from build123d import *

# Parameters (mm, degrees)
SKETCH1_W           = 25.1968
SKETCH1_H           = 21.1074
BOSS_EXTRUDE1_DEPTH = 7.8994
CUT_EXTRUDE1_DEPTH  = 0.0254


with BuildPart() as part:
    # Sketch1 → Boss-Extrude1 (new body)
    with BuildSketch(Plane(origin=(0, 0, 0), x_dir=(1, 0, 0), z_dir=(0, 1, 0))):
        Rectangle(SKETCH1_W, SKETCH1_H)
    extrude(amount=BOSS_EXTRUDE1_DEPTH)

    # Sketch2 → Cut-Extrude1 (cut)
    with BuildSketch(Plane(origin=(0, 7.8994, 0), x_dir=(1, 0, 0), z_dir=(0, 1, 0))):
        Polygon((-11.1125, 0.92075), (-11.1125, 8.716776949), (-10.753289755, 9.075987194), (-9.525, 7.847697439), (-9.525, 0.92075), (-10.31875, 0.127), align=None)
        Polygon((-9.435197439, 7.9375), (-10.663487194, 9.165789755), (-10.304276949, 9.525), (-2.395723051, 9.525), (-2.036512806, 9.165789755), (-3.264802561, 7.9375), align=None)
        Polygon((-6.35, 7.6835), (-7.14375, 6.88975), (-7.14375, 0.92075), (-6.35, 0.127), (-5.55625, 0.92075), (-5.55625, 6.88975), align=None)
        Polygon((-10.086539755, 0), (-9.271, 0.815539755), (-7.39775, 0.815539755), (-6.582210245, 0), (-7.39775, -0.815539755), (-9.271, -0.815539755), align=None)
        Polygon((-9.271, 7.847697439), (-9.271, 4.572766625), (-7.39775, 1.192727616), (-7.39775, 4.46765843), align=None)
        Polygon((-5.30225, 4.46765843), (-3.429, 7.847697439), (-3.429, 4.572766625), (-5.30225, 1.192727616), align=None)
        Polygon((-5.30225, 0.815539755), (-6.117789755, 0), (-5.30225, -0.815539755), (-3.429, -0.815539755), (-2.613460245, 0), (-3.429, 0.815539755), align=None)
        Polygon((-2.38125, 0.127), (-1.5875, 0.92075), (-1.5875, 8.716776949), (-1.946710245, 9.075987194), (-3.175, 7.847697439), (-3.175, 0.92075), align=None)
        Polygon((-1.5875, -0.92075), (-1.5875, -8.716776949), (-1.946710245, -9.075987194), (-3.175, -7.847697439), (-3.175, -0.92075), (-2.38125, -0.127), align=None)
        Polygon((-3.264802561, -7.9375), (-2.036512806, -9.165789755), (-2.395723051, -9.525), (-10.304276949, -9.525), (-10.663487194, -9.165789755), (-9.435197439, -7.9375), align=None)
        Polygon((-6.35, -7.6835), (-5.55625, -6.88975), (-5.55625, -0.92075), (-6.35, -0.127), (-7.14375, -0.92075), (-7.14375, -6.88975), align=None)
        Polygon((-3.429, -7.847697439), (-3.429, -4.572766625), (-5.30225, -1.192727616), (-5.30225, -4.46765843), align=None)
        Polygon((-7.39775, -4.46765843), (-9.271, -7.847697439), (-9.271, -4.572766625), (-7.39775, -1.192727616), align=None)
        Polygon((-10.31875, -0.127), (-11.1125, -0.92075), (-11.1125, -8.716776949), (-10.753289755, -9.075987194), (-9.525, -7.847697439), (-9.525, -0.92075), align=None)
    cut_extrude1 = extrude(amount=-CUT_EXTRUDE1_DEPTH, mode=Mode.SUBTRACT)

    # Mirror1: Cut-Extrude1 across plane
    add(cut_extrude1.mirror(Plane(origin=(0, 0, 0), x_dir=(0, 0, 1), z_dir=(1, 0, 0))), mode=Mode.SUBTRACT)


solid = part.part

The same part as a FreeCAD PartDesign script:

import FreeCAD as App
import Part
import Sketcher

V = App.Vector
Q = App.Units.Quantity

doc = App.newDocument("Part")
body = doc.addObject("PartDesign::Body", "Body")

sketch1 = body.newObject("Sketcher::SketchObject", "Sketch")
sketch1.AttachmentSupport = (doc.getObject("XZ_Plane"), [""])
sketch1.MapMode = "FlatFace"
sketch1.addGeometry([
    Part.LineSegment(V(-12.5984, -10.5537, 0), V(-12.5984, 10.5537, 0)),
    Part.LineSegment(V(-12.5984, 10.5537, 0), V(12.5984, 10.5537, 0)),
    Part.LineSegment(V(12.5984, 10.5537, 0), V(12.5984, -10.5537, 0)),
    Part.LineSegment(V(12.5984, -10.5537, 0), V(-12.5984, -10.5537, 0)),
], False)
sketch1.addConstraint([
    Sketcher.Constraint("Coincident", 0, 2, 1, 1),
    Sketcher.Constraint("Coincident", 1, 2, 2, 1),
    Sketcher.Constraint("Coincident", 2, 2, 3, 1),
    Sketcher.Constraint("Coincident", 3, 2, 0, 1),
    Sketcher.Constraint("Vertical", 0),
    Sketcher.Constraint("Horizontal", 1),
    Sketcher.Constraint("Vertical", 2),
    Sketcher.Constraint("Horizontal", 3),
    Sketcher.Constraint("Symmetric", 0, 2, 2, 2, -1, 1),
    Sketcher.Constraint("DistanceX", 1, 1, 1, 2, Q("0.992 in")),
    Sketcher.Constraint("DistanceY", 0, 1, 0, 2, Q("0.831 in")),
])
pad1 = body.newObject("PartDesign::Pad", "Pad")
pad1.Profile = sketch1
pad1.Length = Q("0.311 in")
pad1.Reversed = True

sketch2 = body.newObject("Sketcher::SketchObject", "Sketch001")
sketch2.AttachmentSupport = (doc.getObject("XZ_Plane"), [""])
sketch2.MapMode = "FlatFace"
sketch2.AttachmentOffset = App.Placement(V(0, 0, -0.311 * 25.4), App.Rotation())
sketch2.addGeometry([
    Part.LineSegment(V(-11.1125, -8.716777, 0), V(-11.1125, -0.92075, 0)),
    Part.LineSegment(V(-11.1125, -0.92075, 0), V(-10.31875, -0.127, 0)),
    Part.LineSegment(V(-10.31875, -0.127, 0), V(-9.525, -0.92075, 0)),
    Part.LineSegment(V(-9.525, -0.92075, 0), V(-9.525, -7.847697, 0)),
    Part.LineSegment(V(-9.525, -7.847697, 0), V(-10.75329, -9.075987, 0)),
    Part.LineSegment(V(-10.75329, -9.075987, 0), V(-11.1125, -8.716777, 0)),
    Part.LineSegment(V(-10.663487, -9.16579, 0), V(-9.435197, -7.9375, 0)),
    Part.LineSegment(V(-9.435197, -7.9375, 0), V(-3.264803, -7.9375, 0)),
    Part.LineSegment(V(-3.264803, -7.9375, 0), V(-2.036513, -9.16579, 0)),
    Part.LineSegment(V(-2.036513, -9.16579, 0), V(-2.395723, -9.525, 0)),
    Part.LineSegment(V(-2.395723, -9.525, 0), V(-10.304277, -9.525, 0)),
    Part.LineSegment(V(-10.304277, -9.525, 0), V(-10.663487, -9.16579, 0)),
    Part.LineSegment(V(-6.35, -7.6835, 0), V(-7.14375, -6.88975, 0)),
    Part.LineSegment(V(-7.14375, -6.88975, 0), V(-7.14375, -0.92075, 0)),
    Part.LineSegment(V(-7.14375, -0.92075, 0), V(-6.35, -0.127, 0)),
    Part.LineSegment(V(-6.35, -0.127, 0), V(-5.55625, -0.92075, 0)),
    Part.LineSegment(V(-5.55625, -0.92075, 0), V(-5.55625, -6.88975, 0)),
    Part.LineSegment(V(-5.55625, -6.88975, 0), V(-6.35, -7.6835, 0)),
    Part.LineSegment(V(-9.271, -0.81554, 0), V(-10.08654, 0, 0)),
    Part.LineSegment(V(-10.08654, 0, 0), V(-9.271, 0.81554, 0)),
    Part.LineSegment(V(-9.271, 0.81554, 0), V(-7.39775, 0.81554, 0)),
    Part.LineSegment(V(-7.39775, 0.81554, 0), V(-6.58221, 0, 0)),
    Part.LineSegment(V(-6.58221, 0, 0), V(-7.39775, -0.81554, 0)),
    Part.LineSegment(V(-7.39775, -0.81554, 0), V(-9.271, -0.81554, 0)),
    Part.LineSegment(V(-9.271, -7.847697, 0), V(-9.271, -4.572767, 0)),
    Part.LineSegment(V(-9.271, -4.572767, 0), V(-7.39775, -1.192728, 0)),
    Part.LineSegment(V(-7.39775, -1.192728, 0), V(-7.39775, -4.467658, 0)),
    Part.LineSegment(V(-7.39775, -4.467658, 0), V(-9.271, -7.847697, 0)),
    Part.LineSegment(V(-3.429, -7.847697, 0), V(-5.30225, -4.467658, 0)),
    Part.LineSegment(V(-5.30225, -4.467658, 0), V(-5.30225, -1.192728, 0)),
    Part.LineSegment(V(-5.30225, -1.192728, 0), V(-3.429, -4.572767, 0)),
    Part.LineSegment(V(-3.429, -4.572767, 0), V(-3.429, -7.847697, 0)),
    Part.LineSegment(V(-5.30225, -0.81554, 0), V(-6.11779, 0, 0)),
    Part.LineSegment(V(-6.11779, 0, 0), V(-5.30225, 0.81554, 0)),
    Part.LineSegment(V(-5.30225, 0.81554, 0), V(-3.429, 0.81554, 0)),
    Part.LineSegment(V(-3.429, 0.81554, 0), V(-2.61346, 0, 0)),
    Part.LineSegment(V(-2.61346, 0, 0), V(-3.429, -0.81554, 0)),
    Part.LineSegment(V(-3.429, -0.81554, 0), V(-5.30225, -0.81554, 0)),
    Part.LineSegment(V(-2.38125, -0.127, 0), V(-1.5875, -0.92075, 0)),
    Part.LineSegment(V(-1.5875, -0.92075, 0), V(-1.5875, -8.716777, 0)),
    Part.LineSegment(V(-1.5875, -8.716777, 0), V(-1.94671, -9.075987, 0)),
    Part.LineSegment(V(-1.94671, -9.075987, 0), V(-3.175, -7.847697, 0)),
    Part.LineSegment(V(-3.175, -7.847697, 0), V(-3.175, -0.92075, 0)),
    Part.LineSegment(V(-3.175, -0.92075, 0), V(-2.38125, -0.127, 0)),
    Part.LineSegment(V(-1.5875, 8.716777, 0), V(-1.5875, 0.92075, 0)),
    Part.LineSegment(V(-1.5875, 0.92075, 0), V(-2.38125, 0.127, 0)),
    Part.LineSegment(V(-2.38125, 0.127, 0), V(-3.175, 0.92075, 0)),
    Part.LineSegment(V(-3.175, 0.92075, 0), V(-3.175, 7.847697, 0)),
    Part.LineSegment(V(-3.175, 7.847697, 0), V(-1.94671, 9.075987, 0)),
    Part.LineSegment(V(-1.94671, 9.075987, 0), V(-1.5875, 8.716777, 0)),
    Part.LineSegment(V(-2.036513, 9.16579, 0), V(-3.264803, 7.9375, 0)),
    Part.LineSegment(V(-3.264803, 7.9375, 0), V(-9.435197, 7.9375, 0)),
    Part.LineSegment(V(-9.435197, 7.9375, 0), V(-10.663487, 9.16579, 0)),
    Part.LineSegment(V(-10.663487, 9.16579, 0), V(-10.304277, 9.525, 0)),
    Part.LineSegment(V(-10.304277, 9.525, 0), V(-2.395723, 9.525, 0)),
    Part.LineSegment(V(-2.395723, 9.525, 0), V(-2.036513, 9.16579, 0)),
    Part.LineSegment(V(-6.35, 7.6835, 0), V(-5.55625, 6.88975, 0)),
    Part.LineSegment(V(-5.55625, 6.88975, 0), V(-5.55625, 0.92075, 0)),
    Part.LineSegment(V(-5.55625, 0.92075, 0), V(-6.35, 0.127, 0)),
    Part.LineSegment(V(-6.35, 0.127, 0), V(-7.14375, 0.92075, 0)),
    Part.LineSegment(V(-7.14375, 0.92075, 0), V(-7.14375, 6.88975, 0)),
    Part.LineSegment(V(-7.14375, 6.88975, 0), V(-6.35, 7.6835, 0)),
    Part.LineSegment(V(-3.429, 7.847697, 0), V(-3.429, 4.572767, 0)),
    Part.LineSegment(V(-3.429, 4.572767, 0), V(-5.30225, 1.192728, 0)),
    Part.LineSegment(V(-5.30225, 1.192728, 0), V(-5.30225, 4.467658, 0)),
    Part.LineSegment(V(-5.30225, 4.467658, 0), V(-3.429, 7.847697, 0)),
    Part.LineSegment(V(-9.271, 7.847697, 0), V(-7.39775, 4.467658, 0)),
    Part.LineSegment(V(-7.39775, 4.467658, 0), V(-7.39775, 1.192728, 0)),
    Part.LineSegment(V(-7.39775, 1.192728, 0), V(-9.271, 4.572767, 0)),
    Part.LineSegment(V(-9.271, 4.572767, 0), V(-9.271, 7.847697, 0)),
    Part.LineSegment(V(-10.31875, 0.127, 0), V(-11.1125, 0.92075, 0)),
    Part.LineSegment(V(-11.1125, 0.92075, 0), V(-11.1125, 8.716777, 0)),
    Part.LineSegment(V(-11.1125, 8.716777, 0), V(-10.75329, 9.075987, 0)),
    Part.LineSegment(V(-10.75329, 9.075987, 0), V(-9.525, 7.847697, 0)),
    Part.LineSegment(V(-9.525, 7.847697, 0), V(-9.525, 0.92075, 0)),
    Part.LineSegment(V(-9.525, 0.92075, 0), V(-10.31875, 0.127, 0)),
], False)
sketch2.addConstraint([
    Sketcher.Constraint("Coincident", 0, 2, 1, 1),
    Sketcher.Constraint("Coincident", 1, 2, 2, 1),
    Sketcher.Constraint("Coincident", 2, 2, 3, 1),
    Sketcher.Constraint("Coincident", 3, 2, 4, 1),
    Sketcher.Constraint("Coincident", 4, 2, 5, 1),
    Sketcher.Constraint("Coincident", 5, 2, 0, 1),
    Sketcher.Constraint("Coincident", 6, 2, 7, 1),
    Sketcher.Constraint("Coincident", 7, 2, 8, 1),
    Sketcher.Constraint("Coincident", 8, 2, 9, 1),
    Sketcher.Constraint("Coincident", 9, 2, 10, 1),
    Sketcher.Constraint("Coincident", 10, 2, 11, 1),
    Sketcher.Constraint("Coincident", 11, 2, 6, 1),
    Sketcher.Constraint("Coincident", 12, 2, 13, 1),
    Sketcher.Constraint("Coincident", 13, 2, 14, 1),
    Sketcher.Constraint("Coincident", 14, 2, 15, 1),
    Sketcher.Constraint("Coincident", 15, 2, 16, 1),
    Sketcher.Constraint("Coincident", 16, 2, 17, 1),
    Sketcher.Constraint("Coincident", 17, 2, 12, 1),
    Sketcher.Constraint("Coincident", 18, 2, 19, 1),
    Sketcher.Constraint("Coincident", 19, 2, 20, 1),
    Sketcher.Constraint("Coincident", 20, 2, 21, 1),
    Sketcher.Constraint("Coincident", 21, 2, 22, 1),
    Sketcher.Constraint("Coincident", 22, 2, 23, 1),
    Sketcher.Constraint("Coincident", 23, 2, 18, 1),
    Sketcher.Constraint("Coincident", 24, 2, 25, 1),
    Sketcher.Constraint("Coincident", 25, 2, 26, 1),
    Sketcher.Constraint("Coincident", 26, 2, 27, 1),
    Sketcher.Constraint("Coincident", 27, 2, 24, 1),
    Sketcher.Constraint("Coincident", 28, 2, 29, 1),
    Sketcher.Constraint("Coincident", 29, 2, 30, 1),
    Sketcher.Constraint("Coincident", 30, 2, 31, 1),
    Sketcher.Constraint("Coincident", 31, 2, 28, 1),
    Sketcher.Constraint("Coincident", 32, 2, 33, 1),
    Sketcher.Constraint("Coincident", 33, 2, 34, 1),
    Sketcher.Constraint("Coincident", 34, 2, 35, 1),
    Sketcher.Constraint("Coincident", 35, 2, 36, 1),
    Sketcher.Constraint("Coincident", 36, 2, 37, 1),
    Sketcher.Constraint("Coincident", 37, 2, 32, 1),
    Sketcher.Constraint("Coincident", 38, 2, 39, 1),
    Sketcher.Constraint("Coincident", 39, 2, 40, 1),
    Sketcher.Constraint("Coincident", 40, 2, 41, 1),
    Sketcher.Constraint("Coincident", 41, 2, 42, 1),
    Sketcher.Constraint("Coincident", 42, 2, 43, 1),
    Sketcher.Constraint("Coincident", 43, 2, 38, 1),
    Sketcher.Constraint("Coincident", 44, 2, 45, 1),
    Sketcher.Constraint("Coincident", 45, 2, 46, 1),
    Sketcher.Constraint("Coincident", 46, 2, 47, 1),
    Sketcher.Constraint("Coincident", 47, 2, 48, 1),
    Sketcher.Constraint("Coincident", 48, 2, 49, 1),
    Sketcher.Constraint("Coincident", 49, 2, 44, 1),
    Sketcher.Constraint("Coincident", 50, 2, 51, 1),
    Sketcher.Constraint("Coincident", 51, 2, 52, 1),
    Sketcher.Constraint("Coincident", 52, 2, 53, 1),
    Sketcher.Constraint("Coincident", 53, 2, 54, 1),
    Sketcher.Constraint("Coincident", 54, 2, 55, 1),
    Sketcher.Constraint("Coincident", 55, 2, 50, 1),
    Sketcher.Constraint("Coincident", 56, 2, 57, 1),
    Sketcher.Constraint("Coincident", 57, 2, 58, 1),
    Sketcher.Constraint("Coincident", 58, 2, 59, 1),
    Sketcher.Constraint("Coincident", 59, 2, 60, 1),
    Sketcher.Constraint("Coincident", 60, 2, 61, 1),
    Sketcher.Constraint("Coincident", 61, 2, 56, 1),
    Sketcher.Constraint("Coincident", 62, 2, 63, 1),
    Sketcher.Constraint("Coincident", 63, 2, 64, 1),
    Sketcher.Constraint("Coincident", 64, 2, 65, 1),
    Sketcher.Constraint("Coincident", 65, 2, 62, 1),
    Sketcher.Constraint("Coincident", 66, 2, 67, 1),
    Sketcher.Constraint("Coincident", 67, 2, 68, 1),
    Sketcher.Constraint("Coincident", 68, 2, 69, 1),
    Sketcher.Constraint("Coincident", 69, 2, 66, 1),
    Sketcher.Constraint("Coincident", 70, 2, 71, 1),
    Sketcher.Constraint("Coincident", 71, 2, 72, 1),
    Sketcher.Constraint("Coincident", 72, 2, 73, 1),
    Sketcher.Constraint("Coincident", 73, 2, 74, 1),
    Sketcher.Constraint("Coincident", 74, 2, 75, 1),
    Sketcher.Constraint("Coincident", 75, 2, 70, 1),
    Sketcher.Constraint("Vertical", 0),
    Sketcher.Constraint("Vertical", 3),
    Sketcher.Constraint("Horizontal", 7),
    Sketcher.Constraint("Horizontal", 10),
    Sketcher.Constraint("Vertical", 13),
    Sketcher.Constraint("Vertical", 16),
    Sketcher.Constraint("Horizontal", 20),
    Sketcher.Constraint("Horizontal", 23),
    Sketcher.Constraint("Vertical", 24),
    Sketcher.Constraint("Vertical", 26),
    Sketcher.Constraint("Vertical", 29),
    Sketcher.Constraint("Vertical", 31),
    Sketcher.Constraint("Horizontal", 34),
    Sketcher.Constraint("Horizontal", 37),
    Sketcher.Constraint("Vertical", 39),
    Sketcher.Constraint("Vertical", 42),
    Sketcher.Constraint("Vertical", 44),
    Sketcher.Constraint("Vertical", 47),
    Sketcher.Constraint("Horizontal", 51),
    Sketcher.Constraint("Horizontal", 54),
    Sketcher.Constraint("Vertical", 57),
    Sketcher.Constraint("Vertical", 60),
    Sketcher.Constraint("Vertical", 62),
    Sketcher.Constraint("Vertical", 64),
    Sketcher.Constraint("Vertical", 67),
    Sketcher.Constraint("Vertical", 69),
    Sketcher.Constraint("Vertical", 71),
    Sketcher.Constraint("Vertical", 74),
    Sketcher.Constraint("Symmetric", 20, 2, 22, 2, -1),
    Sketcher.Constraint("Symmetric", 34, 2, 36, 2, -1),
    Sketcher.Constraint("Symmetric", 38, 2, 44, 2, -1),
    Sketcher.Constraint("Symmetric", 43, 2, 45, 2, -1),
    Sketcher.Constraint("Symmetric", 42, 2, 46, 2, -1),
    Sketcher.Constraint("Symmetric", 40, 2, 48, 2, -1),
    Sketcher.Constraint("Symmetric", 7, 2, 50, 2, -1),
    Sketcher.Constraint("Symmetric", 11, 2, 52, 2, -1),
    Sketcher.Constraint("Symmetric", 10, 2, 53, 2, -1),
    Sketcher.Constraint("Symmetric", 8, 2, 55, 2, -1),
    Sketcher.Constraint("Symmetric", 16, 2, 56, 2, -1),
    Sketcher.Constraint("Symmetric", 14, 2, 58, 2, -1),
    Sketcher.Constraint("Symmetric", 13, 2, 59, 2, -1),
    Sketcher.Constraint("Symmetric", 17, 2, 61, 2, -1),
    Sketcher.Constraint("Symmetric", 30, 2, 62, 2, -1),
    Sketcher.Constraint("Symmetric", 29, 2, 63, 2, -1),
    Sketcher.Constraint("Symmetric", 26, 2, 66, 2, -1),
    Sketcher.Constraint("Symmetric", 24, 2, 68, 2, -1),
    Sketcher.Constraint("Symmetric", 0, 2, 70, 2, -1),
    Sketcher.Constraint("Symmetric", 4, 2, 72, 2, -1),
    Sketcher.Constraint("Symmetric", 3, 2, 73, 2, -1),
    Sketcher.Constraint("Symmetric", 1, 2, 75, 2, -1),
    Sketcher.Constraint("PointOnObject", 18, 2, -1),
    Sketcher.Constraint("PointOnObject", 21, 2, -1),
    Sketcher.Constraint("PointOnObject", 32, 2, -1),
    Sketcher.Constraint("PointOnObject", 35, 2, -1),
    Sketcher.Constraint("Perpendicular", 1, 2),
    Sketcher.Constraint("Perpendicular", 2, 4),
    Sketcher.Constraint("Perpendicular", 4, 5),
    Sketcher.Constraint("Perpendicular", 5, 6),
    Sketcher.Constraint("Perpendicular", 6, 8),
    Sketcher.Constraint("Perpendicular", 8, 9),
    Sketcher.Constraint("Perpendicular", 9, 11),
    Sketcher.Constraint("Parallel", 11, 12),
    Sketcher.Constraint("Perpendicular", 12, 14),
    Sketcher.Constraint("Perpendicular", 14, 15),
    Sketcher.Constraint("Perpendicular", 15, 17),
    Sketcher.Constraint("Perpendicular", 17, 18),
    Sketcher.Constraint("Perpendicular", 18, 19),
    Sketcher.Constraint("Perpendicular", 19, 21),
    Sketcher.Constraint("Perpendicular", 21, 22),
    Sketcher.Constraint("Parallel", 25, 27),
    Sketcher.Constraint("Parallel", 28, 30),
    Sketcher.Constraint("Perpendicular", 22, 32),
    Sketcher.Constraint("Perpendicular", 32, 33),
    Sketcher.Constraint("Perpendicular", 33, 35),
    Sketcher.Constraint("Perpendicular", 36, 38),
    Sketcher.Constraint("Perpendicular", 38, 40),
    Sketcher.Constraint("Perpendicular", 40, 41),
    Sketcher.Constraint("Perpendicular", 41, 43),
    Sketcher.Constraint("Perpendicular", 46, 48),
    Sketcher.Constraint("Perpendicular", 48, 49),
    Sketcher.Constraint("Perpendicular", 50, 52),
    Sketcher.Constraint("Perpendicular", 53, 55),
    Sketcher.Constraint("Perpendicular", 56, 58),
    Sketcher.Constraint("Perpendicular", 59, 61),
    Sketcher.Constraint("Parallel", 27, 63),
    Sketcher.Constraint("Parallel", 63, 65),
    Sketcher.Constraint("Parallel", 30, 66),
    Sketcher.Constraint("Parallel", 66, 68),
    Sketcher.Constraint("Perpendicular", 70, 72),
    Sketcher.Constraint("Perpendicular", 73, 75),
    Sketcher.Constraint("Horizontal", 0, 2, 2, 2),
    Sketcher.Constraint("Horizontal", 8, 2, 11, 2),
    Sketcher.Constraint("Horizontal", 2, 2, 13, 2),
    Sketcher.Constraint("Horizontal", 1, 2, 14, 2),
    Sketcher.Constraint("Horizontal", 13, 2, 15, 2),
    Sketcher.Constraint("Horizontal", 12, 2, 16, 2),
    Sketcher.Constraint("Horizontal", 3, 2, 27, 2),
    Sketcher.Constraint("Horizontal", 26, 2, 28, 2),
    Sketcher.Constraint("Horizontal", 25, 2, 29, 2),
    Sketcher.Constraint("Horizontal", 24, 2, 30, 2),
    Sketcher.Constraint("Horizontal", 20, 2, 33, 2),
    Sketcher.Constraint("Horizontal", 15, 2, 38, 2),
    Sketcher.Constraint("Horizontal", 5, 2, 39, 2),
    Sketcher.Constraint("Horizontal", 4, 2, 40, 2),
    Sketcher.Constraint("Horizontal", 31, 2, 41, 2),
    Sketcher.Constraint("Horizontal", 38, 2, 42, 2),
    Sketcher.Constraint("Horizontal", 47, 2, 65, 2),
    Sketcher.Constraint("Vertical", 23, 2, 24, 2),
    Sketcher.Constraint("Vertical", 22, 2, 25, 2),
    Sketcher.Constraint("Vertical", 29, 2, 33, 2),
    Sketcher.Constraint("Vertical", 31, 2, 34, 2),
    Sketcher.Constraint("Equal", 4, 6),
    Sketcher.Constraint("Equal", 5, 9),
    Sketcher.Constraint("Distance", 5, Q("0.02 in")),
    Sketcher.Constraint("DistanceY", 13, 1, 13, 2, Q("0.235 in")),
    Sketcher.Constraint("DistanceX", 14, 2, -1, 1, Q("0.25 in")),
    Sketcher.Constraint("DistanceX", 0, 2, -1, 1, Q("0.4375 in")),
    Sketcher.Constraint("DistanceX", 1, 2, -1, 1, Q("0.40625 in")),
    Sketcher.Constraint("DistanceY", 1, 2, -1, 1, Q("0.005 in")),
    Sketcher.Constraint("DistanceY", 6, 2, -1, 1, Q("0.3125 in")),
    Sketcher.Constraint("DistanceX", 19, 2, -1, 1, Q("0.365 in")),
    Sketcher.Constraint("DistanceX", 30, 2, -1, 1, Q("0.135 in")),
    Sketcher.Constraint("DistanceX", 38, 2, -1, 1, Q("0.0625 in")),
    Sketcher.Constraint("DistanceX", 20, 1, 20, 2, Q("1.87325 mm")),
    Sketcher.Constraint("DistanceY", 24, 1, 24, 2, Q("3.274931 mm")),
    Sketcher.Constraint("Distance", 25, Q("3.864418 mm")),
    Sketcher.Constraint("DistanceX", 7, 1, 7, 2, Q("6.170395 mm")),
    Sketcher.Constraint("DistanceY", 0, 1, 0, 2, Q("7.796027 mm")),
    Sketcher.Constraint("DistanceX", 18, 2, -1, 1, Q("10.08654 mm")),
    Sketcher.Constraint("DistanceX", 6, 2, -1, 1, Q("9.435197 mm")),
])
pocket1 = body.newObject("PartDesign::Pocket", "Pocket")
pocket1.Profile = sketch2
pocket1.Length = Q("0.001 in")
pocket1.Reversed = True
doc.recompute()

mirrored = body.newObject("PartDesign::Mirrored", "Mirrored")
mirrored.Originals = [pocket1]
mirrored.MirrorPlane = (doc.getObject("YZ_Plane"), [""])
body.Tip = mirrored

doc.recompute()
